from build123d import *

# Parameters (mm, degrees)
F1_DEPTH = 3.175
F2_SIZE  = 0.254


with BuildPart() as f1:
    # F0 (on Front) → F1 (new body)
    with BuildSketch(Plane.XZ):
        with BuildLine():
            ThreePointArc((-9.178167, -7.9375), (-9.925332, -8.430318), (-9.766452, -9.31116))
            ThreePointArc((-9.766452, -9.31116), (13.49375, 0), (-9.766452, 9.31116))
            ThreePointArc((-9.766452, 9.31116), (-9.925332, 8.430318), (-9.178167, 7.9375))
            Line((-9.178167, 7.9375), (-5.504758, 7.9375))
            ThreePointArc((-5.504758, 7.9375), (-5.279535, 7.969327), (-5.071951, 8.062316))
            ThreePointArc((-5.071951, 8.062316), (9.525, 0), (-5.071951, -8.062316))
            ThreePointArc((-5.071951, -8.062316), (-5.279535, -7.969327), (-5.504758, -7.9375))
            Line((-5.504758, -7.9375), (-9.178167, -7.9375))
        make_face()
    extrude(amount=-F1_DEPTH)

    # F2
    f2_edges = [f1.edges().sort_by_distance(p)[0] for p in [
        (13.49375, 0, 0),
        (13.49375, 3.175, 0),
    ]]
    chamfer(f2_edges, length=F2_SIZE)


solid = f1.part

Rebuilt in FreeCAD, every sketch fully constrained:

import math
import FreeCAD as App
import Part
import Sketcher
from FreeCAD import Vector
Q = App.Units.Quantity


def edges_at(feature, points):
    """Names of the edges that pass closest to the given points."""
    edges = feature.Shape.Edges
    near = lambda p: min(range(len(edges)), key=lambda i: edges[i].distToShape(Part.Vertex(*p))[0])
    return sorted({f"Edge{near(p) + 1}" for p in points})

doc = App.newDocument("Part")
body = doc.addObject("PartDesign::Body", "Body")

sketch1 = body.newObject("Sketcher::SketchObject", "Sketch")
sketch1.AttachmentSupport = (doc.getObject("XZ_Plane"), [""])
sketch1.MapMode = "FlatFace"
sketch1.addGeometry(Part.ArcOfCircle(Part.Circle(Vector(-9.178167, -8.7503, 0), Vector(0, 0, 1), 0.8128), math.radians(89.999973), math.radians(223.632903)), False)
sketch1.addGeometry(Part.ArcOfCircle(Part.Circle(Vector(0, 0, 0), Vector(0, 0, 1), 13.49375), math.radians(-136.367119), math.radians(136.367119)), False)
sketch1.addGeometry(Part.ArcOfCircle(Part.Circle(Vector(-9.178167, 8.7503, 0), Vector(0, 0, 1), 0.8128), math.radians(136.367097), math.radians(270.000027)), False)
sketch1.addGeometry(Part.LineSegment(Vector(-9.178167, 7.9375, 0), Vector(-5.504758, 7.9375, 0)), False)
sketch1.addGeometry(Part.ArcOfCircle(Part.Circle(Vector(-5.504756, 8.750295, 0), Vector(0, 0, 1), 0.812795), math.radians(-90.000115), math.radians(-57.826116)), False)
sketch1.addGeometry(Part.ArcOfCircle(Part.Circle(Vector(0, 0, 0), Vector(0, 0, 1), 9.525), math.radians(-122.173733), math.radians(122.173733)), False)
sketch1.addGeometry(Part.ArcOfCircle(Part.Circle(Vector(-5.504756, -8.750295, 0), Vector(0, 0, 1), 0.812795), math.radians(57.826116), math.radians(90.000115)), False)
sketch1.addGeometry(Part.LineSegment(Vector(-5.504758, -7.9375, 0), Vector(-9.178167, -7.9375, 0)), False)
sketch1.addConstraint(Sketcher.Constraint("Tangent", 0, 2, 1, 1))
sketch1.addConstraint(Sketcher.Constraint("Tangent", 1, 2, 2, 1))
sketch1.addConstraint(Sketcher.Constraint("Tangent", 2, 2, 3, 1))
sketch1.addConstraint(Sketcher.Constraint("Coincident", 3, 2, 4, 1))
sketch1.addConstraint(Sketcher.Constraint("Coincident", 4, 2, 5, 2))
sketch1.addConstraint(Sketcher.Constraint("Coincident", 5, 1, 6, 1))
sketch1.addConstraint(Sketcher.Constraint("Coincident", 6, 2, 7, 1))
sketch1.addConstraint(Sketcher.Constraint("Tangent", 7, 2, 0, 1))
sketch1.addConstraint(Sketcher.Constraint("Horizontal", 3))
sketch1.addConstraint(Sketcher.Constraint("Horizontal", 7))
sketch1.addConstraint(Sketcher.Constraint("Coincident", 1, 3, -1, 1))
sketch1.addConstraint(Sketcher.Constraint("Coincident", 5, 3, -1, 1))
sketch1.addConstraint(Sketcher.Constraint("Equal", 0, 2))
sketch1.addConstraint(Sketcher.Constraint("Equal", 4, 6))
sketch1.addConstraint(Sketcher.Constraint("Symmetric", 3, 2, 6, 2, -1))
sketch1.addConstraint(Sketcher.Constraint("Vertical", 6, 3, 3, 2))
sketch1.addConstraint(Sketcher.Constraint("Vertical", 4, 2, 5, 1))
sketch1.addConstraint(Sketcher.Constraint("Radius", 0, Q("0.032 in")))
sketch1.addConstraint(Sketcher.Constraint("Radius", 1, Q("0.53125 in")))
sketch1.addConstraint(Sketcher.Constraint("Radius", 5, Q("0.375 in")))
sketch1.addConstraint(Sketcher.Constraint("DistanceY", -1, 1, 2, 2, Q("0.3125 in")))
sketch1.addConstraint(Sketcher.Constraint("Radius", 4, Q("0.812795 mm")))
sketch1.addConstraint(Sketcher.Constraint("DistanceX", 1, 2, 4, 2, Q("4.694501 mm")))
pad1 = body.newObject("PartDesign::Pad", "Pad")
pad1.Profile = sketch1
pad1.Length = Q("0.125 in")
pad1.Reversed = True
doc.recompute()

chamfer = body.newObject("PartDesign::Chamfer", "Chamfer")
chamfer.Base = (pad1, edges_at(pad1, [(13.494, 0, 0), (13.494, 3.175, 0)]))
chamfer.Size = Q("0.01 in")

doc.recompute()
